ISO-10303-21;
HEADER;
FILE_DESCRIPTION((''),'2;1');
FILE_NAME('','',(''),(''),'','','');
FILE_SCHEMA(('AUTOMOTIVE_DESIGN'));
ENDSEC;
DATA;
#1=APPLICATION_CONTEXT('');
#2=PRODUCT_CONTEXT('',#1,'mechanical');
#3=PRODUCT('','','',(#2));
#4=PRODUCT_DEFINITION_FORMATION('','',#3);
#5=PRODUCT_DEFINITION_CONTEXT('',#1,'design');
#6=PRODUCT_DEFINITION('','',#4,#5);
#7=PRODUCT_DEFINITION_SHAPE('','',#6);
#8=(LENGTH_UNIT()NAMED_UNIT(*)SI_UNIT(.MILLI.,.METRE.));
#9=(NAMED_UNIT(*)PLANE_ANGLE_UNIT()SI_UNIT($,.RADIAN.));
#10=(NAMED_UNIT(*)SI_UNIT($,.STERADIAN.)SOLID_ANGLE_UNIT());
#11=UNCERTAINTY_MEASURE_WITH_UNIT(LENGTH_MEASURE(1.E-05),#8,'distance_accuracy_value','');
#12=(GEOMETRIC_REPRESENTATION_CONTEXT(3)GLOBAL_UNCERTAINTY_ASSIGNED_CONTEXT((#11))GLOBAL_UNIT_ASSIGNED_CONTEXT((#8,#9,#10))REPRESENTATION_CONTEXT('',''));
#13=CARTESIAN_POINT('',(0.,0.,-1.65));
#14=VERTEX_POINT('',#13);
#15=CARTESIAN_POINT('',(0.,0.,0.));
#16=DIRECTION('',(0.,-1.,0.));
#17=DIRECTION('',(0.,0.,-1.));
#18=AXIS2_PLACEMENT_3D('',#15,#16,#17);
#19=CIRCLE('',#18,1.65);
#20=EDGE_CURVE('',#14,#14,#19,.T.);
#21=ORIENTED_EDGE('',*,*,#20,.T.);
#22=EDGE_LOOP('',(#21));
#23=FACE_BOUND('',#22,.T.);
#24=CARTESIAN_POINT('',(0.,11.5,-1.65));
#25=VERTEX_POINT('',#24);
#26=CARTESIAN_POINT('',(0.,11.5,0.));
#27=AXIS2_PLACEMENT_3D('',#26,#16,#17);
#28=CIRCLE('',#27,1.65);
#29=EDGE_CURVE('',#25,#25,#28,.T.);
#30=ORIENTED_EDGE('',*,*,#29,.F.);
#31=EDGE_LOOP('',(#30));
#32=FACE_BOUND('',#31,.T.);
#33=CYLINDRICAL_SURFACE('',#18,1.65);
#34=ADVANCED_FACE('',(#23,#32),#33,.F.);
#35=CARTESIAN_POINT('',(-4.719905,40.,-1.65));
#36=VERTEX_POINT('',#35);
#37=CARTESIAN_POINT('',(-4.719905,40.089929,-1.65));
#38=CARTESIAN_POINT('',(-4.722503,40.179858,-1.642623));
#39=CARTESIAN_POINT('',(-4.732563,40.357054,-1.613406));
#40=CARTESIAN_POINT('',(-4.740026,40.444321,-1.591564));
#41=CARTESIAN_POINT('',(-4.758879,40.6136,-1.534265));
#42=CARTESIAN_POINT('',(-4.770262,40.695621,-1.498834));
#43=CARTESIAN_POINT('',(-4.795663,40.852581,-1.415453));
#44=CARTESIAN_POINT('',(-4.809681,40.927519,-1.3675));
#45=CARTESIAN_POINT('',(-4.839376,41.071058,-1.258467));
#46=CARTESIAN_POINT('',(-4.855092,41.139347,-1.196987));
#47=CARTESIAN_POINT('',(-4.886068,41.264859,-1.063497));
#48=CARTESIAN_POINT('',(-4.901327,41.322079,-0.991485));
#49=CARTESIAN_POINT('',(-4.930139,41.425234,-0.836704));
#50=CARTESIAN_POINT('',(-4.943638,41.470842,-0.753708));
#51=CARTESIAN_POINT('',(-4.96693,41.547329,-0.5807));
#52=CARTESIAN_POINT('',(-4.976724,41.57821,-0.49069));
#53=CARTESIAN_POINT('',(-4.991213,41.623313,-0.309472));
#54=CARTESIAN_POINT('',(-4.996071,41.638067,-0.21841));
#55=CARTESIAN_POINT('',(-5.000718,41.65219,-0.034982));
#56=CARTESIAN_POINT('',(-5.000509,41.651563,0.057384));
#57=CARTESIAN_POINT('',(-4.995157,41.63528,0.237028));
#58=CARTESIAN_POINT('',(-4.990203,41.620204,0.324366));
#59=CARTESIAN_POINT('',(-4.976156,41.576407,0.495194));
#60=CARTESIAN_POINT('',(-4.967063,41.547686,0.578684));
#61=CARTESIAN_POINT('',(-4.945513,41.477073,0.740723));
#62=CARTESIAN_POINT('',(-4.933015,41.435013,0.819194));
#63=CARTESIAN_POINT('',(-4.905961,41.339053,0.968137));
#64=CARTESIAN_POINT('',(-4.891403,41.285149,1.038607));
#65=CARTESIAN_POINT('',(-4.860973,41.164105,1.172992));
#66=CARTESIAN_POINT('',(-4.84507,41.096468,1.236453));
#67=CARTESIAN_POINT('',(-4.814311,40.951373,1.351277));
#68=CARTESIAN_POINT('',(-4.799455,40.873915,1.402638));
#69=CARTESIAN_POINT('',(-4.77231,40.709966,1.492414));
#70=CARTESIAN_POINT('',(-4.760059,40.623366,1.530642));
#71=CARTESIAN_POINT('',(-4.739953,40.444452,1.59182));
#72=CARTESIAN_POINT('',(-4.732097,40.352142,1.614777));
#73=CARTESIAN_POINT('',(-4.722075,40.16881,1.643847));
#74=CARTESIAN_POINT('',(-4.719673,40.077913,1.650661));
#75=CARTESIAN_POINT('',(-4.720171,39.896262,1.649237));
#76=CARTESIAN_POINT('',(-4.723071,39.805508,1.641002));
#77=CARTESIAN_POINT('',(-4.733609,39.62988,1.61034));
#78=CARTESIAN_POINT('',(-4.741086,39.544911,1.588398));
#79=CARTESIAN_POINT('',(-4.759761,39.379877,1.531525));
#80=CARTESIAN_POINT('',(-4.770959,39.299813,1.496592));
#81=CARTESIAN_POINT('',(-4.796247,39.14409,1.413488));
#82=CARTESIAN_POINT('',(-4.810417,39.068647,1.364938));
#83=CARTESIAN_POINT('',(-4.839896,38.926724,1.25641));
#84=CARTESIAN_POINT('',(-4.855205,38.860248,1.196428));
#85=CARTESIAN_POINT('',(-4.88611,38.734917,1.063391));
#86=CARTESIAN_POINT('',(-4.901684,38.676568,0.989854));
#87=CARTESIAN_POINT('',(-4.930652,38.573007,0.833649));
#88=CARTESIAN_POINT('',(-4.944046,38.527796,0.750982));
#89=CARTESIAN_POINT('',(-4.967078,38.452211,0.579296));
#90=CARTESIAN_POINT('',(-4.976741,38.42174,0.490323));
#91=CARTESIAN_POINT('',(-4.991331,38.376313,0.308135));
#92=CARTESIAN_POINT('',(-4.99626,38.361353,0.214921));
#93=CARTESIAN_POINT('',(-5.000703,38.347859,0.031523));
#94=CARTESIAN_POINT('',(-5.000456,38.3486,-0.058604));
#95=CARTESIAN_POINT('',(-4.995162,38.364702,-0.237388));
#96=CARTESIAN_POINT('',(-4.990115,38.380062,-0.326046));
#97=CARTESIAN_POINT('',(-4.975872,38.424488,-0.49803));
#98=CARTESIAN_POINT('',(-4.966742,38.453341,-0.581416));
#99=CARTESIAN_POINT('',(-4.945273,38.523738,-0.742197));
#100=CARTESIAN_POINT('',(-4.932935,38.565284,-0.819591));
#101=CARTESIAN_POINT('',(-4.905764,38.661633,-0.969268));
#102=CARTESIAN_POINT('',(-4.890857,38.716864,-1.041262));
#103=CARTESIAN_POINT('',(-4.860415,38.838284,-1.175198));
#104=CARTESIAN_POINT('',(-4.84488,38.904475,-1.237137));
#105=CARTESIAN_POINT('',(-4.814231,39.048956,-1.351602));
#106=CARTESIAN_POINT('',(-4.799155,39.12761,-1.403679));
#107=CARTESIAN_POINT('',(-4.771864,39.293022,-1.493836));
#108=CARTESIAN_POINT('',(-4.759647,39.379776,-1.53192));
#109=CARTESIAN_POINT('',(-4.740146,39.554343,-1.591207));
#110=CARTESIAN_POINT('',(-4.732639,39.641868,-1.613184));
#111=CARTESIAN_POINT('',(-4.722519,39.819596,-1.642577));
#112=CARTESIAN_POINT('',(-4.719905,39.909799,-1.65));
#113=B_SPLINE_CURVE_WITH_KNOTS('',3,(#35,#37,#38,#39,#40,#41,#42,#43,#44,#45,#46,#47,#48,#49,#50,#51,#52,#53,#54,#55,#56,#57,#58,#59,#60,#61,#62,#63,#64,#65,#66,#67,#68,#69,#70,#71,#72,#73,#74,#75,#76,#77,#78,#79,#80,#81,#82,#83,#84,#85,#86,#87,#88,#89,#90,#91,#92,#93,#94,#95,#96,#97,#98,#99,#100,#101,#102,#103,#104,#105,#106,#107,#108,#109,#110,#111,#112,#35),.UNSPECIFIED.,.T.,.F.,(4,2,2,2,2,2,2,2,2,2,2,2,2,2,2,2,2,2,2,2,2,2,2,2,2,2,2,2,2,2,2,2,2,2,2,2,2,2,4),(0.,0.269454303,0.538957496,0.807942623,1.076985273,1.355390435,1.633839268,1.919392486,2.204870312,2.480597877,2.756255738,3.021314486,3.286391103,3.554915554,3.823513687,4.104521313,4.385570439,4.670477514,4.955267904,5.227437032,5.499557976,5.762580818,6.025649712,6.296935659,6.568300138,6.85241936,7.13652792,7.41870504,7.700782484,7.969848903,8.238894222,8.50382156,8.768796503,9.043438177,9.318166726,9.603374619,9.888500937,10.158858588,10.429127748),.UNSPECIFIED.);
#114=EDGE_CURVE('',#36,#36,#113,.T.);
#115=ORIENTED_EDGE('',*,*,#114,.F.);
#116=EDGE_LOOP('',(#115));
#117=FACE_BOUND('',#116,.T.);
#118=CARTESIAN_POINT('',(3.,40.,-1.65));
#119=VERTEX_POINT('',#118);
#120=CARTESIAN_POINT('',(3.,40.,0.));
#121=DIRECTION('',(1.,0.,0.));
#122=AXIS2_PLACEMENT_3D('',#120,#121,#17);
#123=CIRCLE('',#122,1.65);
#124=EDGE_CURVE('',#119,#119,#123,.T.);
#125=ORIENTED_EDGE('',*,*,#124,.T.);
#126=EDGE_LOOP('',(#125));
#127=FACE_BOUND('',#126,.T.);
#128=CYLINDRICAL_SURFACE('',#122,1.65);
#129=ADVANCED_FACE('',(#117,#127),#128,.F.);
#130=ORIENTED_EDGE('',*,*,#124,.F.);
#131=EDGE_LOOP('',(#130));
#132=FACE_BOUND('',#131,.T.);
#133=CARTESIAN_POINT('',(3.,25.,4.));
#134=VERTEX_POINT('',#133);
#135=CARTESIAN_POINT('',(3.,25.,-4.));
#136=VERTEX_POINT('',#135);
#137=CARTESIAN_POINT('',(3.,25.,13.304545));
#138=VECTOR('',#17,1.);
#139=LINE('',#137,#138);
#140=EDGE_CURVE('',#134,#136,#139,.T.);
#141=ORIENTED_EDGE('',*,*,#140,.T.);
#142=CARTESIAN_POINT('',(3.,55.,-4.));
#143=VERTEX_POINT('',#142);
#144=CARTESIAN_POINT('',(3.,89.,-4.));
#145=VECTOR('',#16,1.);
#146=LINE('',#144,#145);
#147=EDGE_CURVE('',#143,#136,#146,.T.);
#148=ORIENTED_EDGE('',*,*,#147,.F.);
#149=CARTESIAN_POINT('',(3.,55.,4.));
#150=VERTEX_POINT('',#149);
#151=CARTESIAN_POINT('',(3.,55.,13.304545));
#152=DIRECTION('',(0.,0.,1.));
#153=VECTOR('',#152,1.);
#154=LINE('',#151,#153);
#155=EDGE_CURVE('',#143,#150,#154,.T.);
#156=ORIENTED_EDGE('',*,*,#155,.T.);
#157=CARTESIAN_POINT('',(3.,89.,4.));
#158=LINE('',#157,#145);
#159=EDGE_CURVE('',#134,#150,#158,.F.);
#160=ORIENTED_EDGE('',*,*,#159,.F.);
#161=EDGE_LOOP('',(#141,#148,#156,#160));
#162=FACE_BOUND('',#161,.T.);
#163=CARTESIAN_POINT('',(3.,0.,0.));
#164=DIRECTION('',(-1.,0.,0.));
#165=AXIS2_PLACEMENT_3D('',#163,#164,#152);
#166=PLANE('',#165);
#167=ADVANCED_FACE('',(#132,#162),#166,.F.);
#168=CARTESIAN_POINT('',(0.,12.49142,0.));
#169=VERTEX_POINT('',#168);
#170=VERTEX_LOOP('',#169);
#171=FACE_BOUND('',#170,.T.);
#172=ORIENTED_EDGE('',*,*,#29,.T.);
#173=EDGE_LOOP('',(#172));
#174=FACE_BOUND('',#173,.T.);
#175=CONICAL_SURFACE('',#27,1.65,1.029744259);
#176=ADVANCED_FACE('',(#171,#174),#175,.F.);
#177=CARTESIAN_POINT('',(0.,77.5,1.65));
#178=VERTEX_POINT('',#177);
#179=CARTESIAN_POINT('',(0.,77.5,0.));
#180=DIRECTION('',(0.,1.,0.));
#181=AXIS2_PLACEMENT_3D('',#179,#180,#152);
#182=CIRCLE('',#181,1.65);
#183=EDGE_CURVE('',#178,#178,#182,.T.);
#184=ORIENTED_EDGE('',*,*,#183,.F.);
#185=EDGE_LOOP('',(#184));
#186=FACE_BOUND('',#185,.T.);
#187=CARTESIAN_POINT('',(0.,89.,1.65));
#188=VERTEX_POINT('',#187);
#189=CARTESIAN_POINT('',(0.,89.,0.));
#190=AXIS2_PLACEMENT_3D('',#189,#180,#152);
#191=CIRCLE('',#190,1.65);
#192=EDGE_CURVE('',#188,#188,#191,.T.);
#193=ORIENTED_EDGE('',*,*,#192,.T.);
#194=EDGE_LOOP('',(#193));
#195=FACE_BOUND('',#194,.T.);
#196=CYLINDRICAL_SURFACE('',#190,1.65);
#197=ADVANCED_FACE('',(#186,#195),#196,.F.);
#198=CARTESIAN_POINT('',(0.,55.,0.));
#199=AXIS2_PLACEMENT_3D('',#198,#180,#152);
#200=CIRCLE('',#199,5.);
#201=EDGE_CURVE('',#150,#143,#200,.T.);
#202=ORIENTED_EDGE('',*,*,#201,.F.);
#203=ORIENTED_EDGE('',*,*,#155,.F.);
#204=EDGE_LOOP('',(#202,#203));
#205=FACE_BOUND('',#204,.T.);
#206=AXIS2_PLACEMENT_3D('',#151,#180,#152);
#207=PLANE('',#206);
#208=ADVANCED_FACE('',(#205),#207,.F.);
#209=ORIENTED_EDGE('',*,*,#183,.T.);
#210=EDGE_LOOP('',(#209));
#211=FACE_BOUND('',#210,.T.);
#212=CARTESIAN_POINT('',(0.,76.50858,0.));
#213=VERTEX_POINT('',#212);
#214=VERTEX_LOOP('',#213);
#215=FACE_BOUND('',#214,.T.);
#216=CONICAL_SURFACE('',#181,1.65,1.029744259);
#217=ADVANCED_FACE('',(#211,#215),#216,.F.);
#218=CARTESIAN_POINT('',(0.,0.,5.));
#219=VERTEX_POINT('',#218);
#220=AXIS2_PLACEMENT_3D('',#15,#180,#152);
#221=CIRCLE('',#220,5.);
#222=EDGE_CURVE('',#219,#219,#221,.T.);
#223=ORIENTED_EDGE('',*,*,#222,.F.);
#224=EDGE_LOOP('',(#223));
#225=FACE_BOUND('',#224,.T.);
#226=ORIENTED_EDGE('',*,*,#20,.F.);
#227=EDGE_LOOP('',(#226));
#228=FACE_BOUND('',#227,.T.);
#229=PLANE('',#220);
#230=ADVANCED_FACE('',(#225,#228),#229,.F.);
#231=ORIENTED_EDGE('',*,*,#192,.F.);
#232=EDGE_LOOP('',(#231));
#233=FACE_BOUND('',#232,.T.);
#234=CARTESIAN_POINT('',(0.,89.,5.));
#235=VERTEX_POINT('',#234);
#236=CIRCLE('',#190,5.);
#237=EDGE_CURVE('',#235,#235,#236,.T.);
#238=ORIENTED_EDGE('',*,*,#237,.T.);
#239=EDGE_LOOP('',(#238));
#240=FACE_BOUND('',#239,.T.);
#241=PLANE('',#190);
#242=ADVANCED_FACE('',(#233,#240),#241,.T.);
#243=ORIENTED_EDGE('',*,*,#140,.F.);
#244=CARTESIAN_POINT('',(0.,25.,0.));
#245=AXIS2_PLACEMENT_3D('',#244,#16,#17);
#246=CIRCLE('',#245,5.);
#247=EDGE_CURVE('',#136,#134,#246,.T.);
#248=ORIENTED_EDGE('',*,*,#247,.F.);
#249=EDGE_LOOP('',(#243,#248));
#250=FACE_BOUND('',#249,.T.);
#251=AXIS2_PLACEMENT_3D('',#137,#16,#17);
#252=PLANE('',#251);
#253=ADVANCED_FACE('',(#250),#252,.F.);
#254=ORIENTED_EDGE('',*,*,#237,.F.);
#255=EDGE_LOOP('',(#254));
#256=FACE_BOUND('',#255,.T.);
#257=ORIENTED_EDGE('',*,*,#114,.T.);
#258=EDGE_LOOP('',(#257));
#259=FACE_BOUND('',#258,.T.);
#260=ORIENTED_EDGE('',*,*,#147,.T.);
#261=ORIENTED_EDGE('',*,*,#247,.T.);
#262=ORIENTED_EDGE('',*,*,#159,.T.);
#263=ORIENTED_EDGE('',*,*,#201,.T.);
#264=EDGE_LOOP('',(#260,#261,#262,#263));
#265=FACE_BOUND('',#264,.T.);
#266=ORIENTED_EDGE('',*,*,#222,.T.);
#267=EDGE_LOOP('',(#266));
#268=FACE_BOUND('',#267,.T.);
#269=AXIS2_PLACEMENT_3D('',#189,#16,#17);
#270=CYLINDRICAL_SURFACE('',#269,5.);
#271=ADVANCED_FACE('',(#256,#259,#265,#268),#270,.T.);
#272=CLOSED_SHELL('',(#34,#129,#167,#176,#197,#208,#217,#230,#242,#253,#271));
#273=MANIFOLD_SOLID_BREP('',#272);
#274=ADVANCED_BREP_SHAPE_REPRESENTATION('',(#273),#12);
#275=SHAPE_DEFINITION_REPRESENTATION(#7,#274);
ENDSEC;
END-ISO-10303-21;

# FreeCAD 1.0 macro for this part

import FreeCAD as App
import Part
import Sketcher
Q = App.Units.Quantity

doc = App.newDocument("Part")
body = doc.addObject("PartDesign::Body", "Body")

# Sketch on XZ plane
sketch1 = body.newObject("Sketcher::SketchObject", "Sketch")
sketch1.AttachmentSupport = (doc.getObject("XZ_Plane"), [""])
sketch1.MapMode = "FlatFace"
sketch1.addGeometry(Part.Circle(App.Vector(0, 0, 0), App.Vector(0, 0, 1), 5), False)
sketch1.addConstraint([
    Sketcher.Constraint("Coincident", 0, 3, -1, 1),
    Sketcher.Constraint("Diameter", 0, Q("10 mm")),
])
pad1 = body.newObject("PartDesign::Pad", "Pad")
pad1.Profile = sketch1
pad1.Length = 89
pad1.Reversed = True

# Sketch on XZ plane
sketch2 = body.newObject("Sketcher::SketchObject", "Sketch001")
sketch2.AttachmentSupport = (doc.getObject("XZ_Plane"), [""])
sketch2.MapMode = "FlatFace"
sketch2.AttachmentOffset = App.Placement(App.Vector(0, 0, -89), App.Rotation())
sketch2.addGeometry(Part.Circle(App.Vector(0, 0, 0), App.Vector(0, 0, 1), 1.6), False)
sketch2.addConstraint([
    Sketcher.Constraint("Coincident", 0, 3, -1, 1),
    Sketcher.Constraint("Diameter", 0, Q("3.3 mm")),
])
doc.recompute()
hole = body.newObject("PartDesign::Hole", "Hole")
hole.Profile = sketch2
hole.ThreadType = "None"
hole.Diameter = 3.3
hole.DepthType = "Dimension"
hole.Depth = 11.5
hole.DrillPoint = "Angled"
hole.DrillPointAngle = 118
hole.Reversed = True

# Sketch on XZ plane
sketch3 = body.newObject("Sketcher::SketchObject", "Sketch002")
sketch3.AttachmentSupport = (doc.getObject("XZ_Plane"), [""])
sketch3.MapMode = "FlatFace"
sketch3.addGeometry(Part.Circle(App.Vector(0, 0, 0), App.Vector(0, 0, 1), 1.6), False)
sketch3.addConstraint([
    Sketcher.Constraint("Coincident", 0, 3, -1, 1),
    Sketcher.Constraint("Diameter", 0, Q("3.3 mm")),
])
doc.recompute()
hole2 = body.newObject("PartDesign::Hole", "Hole001")
hole2.Profile = sketch3
hole2.ThreadType = "None"
hole2.Diameter = 3.3
hole2.DepthType = "Dimension"
hole2.Depth = 11.5
hole2.DrillPoint = "Angled"
hole2.DrillPointAngle = 118

# Sketch on YZ plane
sketch4 = body.newObject("Sketcher::SketchObject", "Sketch003")
sketch4.AttachmentSupport = (doc.getObject("YZ_Plane"), [""])
sketch4.MapMode = "FlatFace"
sketch4.AttachmentOffset = App.Placement(App.Vector(0, 0, 5), App.Rotation())
sketch4.addGeometry([
    Part.LineSegment(App.Vector(55, 13, 0), App.Vector(25, 13, 0)),
    Part.LineSegment(App.Vector(25, 13, 0), App.Vector(25, -13, 0)),
    Part.LineSegment(App.Vector(25, -13, 0), App.Vector(55, -13, 0)),
    Part.LineSegment(App.Vector(55, -13, 0), App.Vector(55, 13, 0)),
], False)
sketch4.addConstraint([
    Sketcher.Constraint("Coincident", 0, 2, 1, 1),
    Sketcher.Constraint("Coincident", 1, 2, 2, 1),
    Sketcher.Constraint("Coincident", 2, 2, 3, 1),
    Sketcher.Constraint("Coincident", 3, 2, 0, 1),
    Sketcher.Constraint("Horizontal", 0),
    Sketcher.Constraint("Vertical", 1),
    Sketcher.Constraint("Horizontal", 2),
    Sketcher.Constraint("Vertical", 3),
    Sketcher.Constraint("DistanceX", 0, 2, 0, 1, Q("30 mm")),
    Sketcher.Constraint("DistanceX", -1, 1, 0, 2, Q("25 mm")),
    Sketcher.Constraint("DistanceY", 1, 2, 1, 1, Q("26.60909 mm")),
    Sketcher.Constraint("DistanceY", -1, 1, 0, 2, Q("13.304545 mm")),
])
pocket1 = body.newObject("PartDesign::Pocket", "Pocket")
pocket1.Profile = sketch4
pocket1.Length = 2

# Sketch on YZ plane
sketch5 = body.newObject("Sketcher::SketchObject", "Sketch004")
sketch5.AttachmentSupport = (doc.getObject("YZ_Plane"), [""])
sketch5.MapMode = "FlatFace"
sketch5.AttachmentOffset = App.Placement(App.Vector(0, 0, 3), App.Rotation())
sketch5.addGeometry(Part.Circle(App.Vector(40, 0, 0), App.Vector(0, 0, 1), 1.6), False)
sketch5.addConstraint([
    Sketcher.Constraint("PointOnObject", 0, 3, -1),
    Sketcher.Constraint("Diameter", 0, Q("3.3 mm")),
    Sketcher.Constraint("DistanceX", -1, 1, 0, 3, Q("40 mm")),
])
doc.recompute()
hole3 = body.newObject("PartDesign::Hole", "Hole002")
hole3.Profile = sketch5
hole3.ThreadType = "None"
hole3.Diameter = 3.3
hole3.DepthType = "Dimension"
hole3.Depth = 11.5
hole3.DrillPoint = "Angled"
hole3.DrillPointAngle = 118

doc.recompute()
